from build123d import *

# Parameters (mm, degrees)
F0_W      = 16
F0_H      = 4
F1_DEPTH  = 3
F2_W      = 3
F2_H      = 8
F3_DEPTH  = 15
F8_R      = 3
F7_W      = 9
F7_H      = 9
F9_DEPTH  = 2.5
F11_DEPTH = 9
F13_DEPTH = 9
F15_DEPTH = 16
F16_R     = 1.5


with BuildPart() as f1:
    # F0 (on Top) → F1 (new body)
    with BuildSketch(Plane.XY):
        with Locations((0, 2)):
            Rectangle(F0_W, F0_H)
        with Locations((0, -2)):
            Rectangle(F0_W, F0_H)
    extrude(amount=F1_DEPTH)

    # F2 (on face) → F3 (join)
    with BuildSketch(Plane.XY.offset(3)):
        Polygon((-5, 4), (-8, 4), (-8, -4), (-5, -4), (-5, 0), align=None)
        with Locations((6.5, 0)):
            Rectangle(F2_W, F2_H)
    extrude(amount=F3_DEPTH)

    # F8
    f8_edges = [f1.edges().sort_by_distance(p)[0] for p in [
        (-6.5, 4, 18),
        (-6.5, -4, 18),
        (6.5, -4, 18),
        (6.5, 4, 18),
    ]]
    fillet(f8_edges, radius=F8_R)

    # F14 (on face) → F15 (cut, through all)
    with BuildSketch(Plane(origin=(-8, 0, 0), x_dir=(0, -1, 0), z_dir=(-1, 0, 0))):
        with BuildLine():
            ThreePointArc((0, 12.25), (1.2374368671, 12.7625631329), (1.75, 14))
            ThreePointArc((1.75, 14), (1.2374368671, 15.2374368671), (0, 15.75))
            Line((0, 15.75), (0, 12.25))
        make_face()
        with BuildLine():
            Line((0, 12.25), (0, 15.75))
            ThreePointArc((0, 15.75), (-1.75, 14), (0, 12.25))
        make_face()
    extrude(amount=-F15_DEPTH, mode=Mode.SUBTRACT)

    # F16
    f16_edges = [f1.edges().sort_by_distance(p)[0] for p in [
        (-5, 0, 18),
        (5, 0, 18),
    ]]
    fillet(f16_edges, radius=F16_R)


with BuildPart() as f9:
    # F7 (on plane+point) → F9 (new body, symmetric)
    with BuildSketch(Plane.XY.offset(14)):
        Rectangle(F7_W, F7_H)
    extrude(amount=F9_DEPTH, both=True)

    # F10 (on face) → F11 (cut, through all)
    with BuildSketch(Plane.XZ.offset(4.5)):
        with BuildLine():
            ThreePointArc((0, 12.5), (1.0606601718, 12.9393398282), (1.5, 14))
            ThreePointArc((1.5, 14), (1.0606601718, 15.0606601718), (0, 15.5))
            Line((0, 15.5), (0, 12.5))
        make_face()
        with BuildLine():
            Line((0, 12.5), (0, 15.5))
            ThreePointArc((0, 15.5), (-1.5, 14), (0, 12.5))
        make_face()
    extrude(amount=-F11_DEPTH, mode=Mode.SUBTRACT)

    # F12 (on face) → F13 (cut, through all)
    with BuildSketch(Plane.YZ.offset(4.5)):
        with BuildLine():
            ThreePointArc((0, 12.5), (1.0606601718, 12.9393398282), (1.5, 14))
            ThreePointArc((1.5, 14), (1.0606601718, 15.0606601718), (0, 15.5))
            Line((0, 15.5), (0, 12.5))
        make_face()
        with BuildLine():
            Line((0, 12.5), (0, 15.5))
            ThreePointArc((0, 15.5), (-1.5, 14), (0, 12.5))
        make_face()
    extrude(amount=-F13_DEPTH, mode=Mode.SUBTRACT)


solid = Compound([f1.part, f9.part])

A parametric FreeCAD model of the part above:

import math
import FreeCAD as App
import Part
import Sketcher
Q = App.Units.Quantity


def edges_at(feature, points):
    """Names of the edges that pass closest to the given points."""
    edges = feature.Shape.Edges
    near = lambda p: min(range(len(edges)), key=lambda i: edges[i].distToShape(Part.Vertex(*p))[0])
    return sorted({f"Edge{near(p) + 1}" for p in points})

doc = App.newDocument("Part")
body = doc.addObject("PartDesign::Body", "Body")

# Sketch on XY plane
sketch1 = body.newObject("Sketcher::SketchObject", "Sketch")
sketch1.AttachmentSupport = (doc.getObject("XY_Plane"), [""])
sketch1.MapMode = "FlatFace"
sketch1.addGeometry([
    Part.LineSegment(App.Vector(-8, 4, 0), App.Vector(-8, -4, 0)),
    Part.LineSegment(App.Vector(-8, -4, 0), App.Vector(8, -4, 0)),
    Part.LineSegment(App.Vector(8, -4, 0), App.Vector(8, 4, 0)),
    Part.LineSegment(App.Vector(8, 4, 0), App.Vector(-8, 4, 0)),
], False)
sketch1.addConstraint([
    Sketcher.Constraint("Coincident", 0, 2, 1, 1),
    Sketcher.Constraint("Coincident", 1, 2, 2, 1),
    Sketcher.Constraint("Coincident", 2, 2, 3, 1),
    Sketcher.Constraint("Coincident", 3, 2, 0, 1),
    Sketcher.Constraint("Vertical", 0),
    Sketcher.Constraint("Horizontal", 1),
    Sketcher.Constraint("Vertical", 2),
    Sketcher.Constraint("Horizontal", 3),
    Sketcher.Constraint("Symmetric", 0, 2, 2, 2, -1, 1),
    Sketcher.Constraint("DistanceX", 1, 1, 1, 2, Q("16 mm")),
    Sketcher.Constraint("DistanceY", 0, 2, 0, 1, Q("8 mm")),
])
pad1 = body.newObject("PartDesign::Pad", "Pad")
pad1.Profile = sketch1
pad1.Length = 3

# Sketch on XY plane
sketch2 = body.newObject("Sketcher::SketchObject", "Sketch001")
sketch2.AttachmentSupport = (doc.getObject("XY_Plane"), [""])
sketch2.MapMode = "FlatFace"
sketch2.AttachmentOffset = App.Placement(App.Vector(0, 0, 3), App.Rotation())
sketch2.addGeometry([
    Part.LineSegment(App.Vector(-5, 4, 0), App.Vector(-8, 4, 0)),  # 0
    Part.LineSegment(App.Vector(-8, 4, 0), App.Vector(-8, -4, 0)),  # 1
    Part.LineSegment(App.Vector(-8, -4, 0), App.Vector(-5, -4, 0)),  # 2
    Part.LineSegment(App.Vector(-5, -4, 0), App.Vector(-5, 4, 0)),  # 3
    Part.LineSegment(App.Vector(5, 4, 0), App.Vector(5, -4, 0)),  # 4
    Part.LineSegment(App.Vector(5, -4, 0), App.Vector(8, -4, 0)),  # 5
    Part.LineSegment(App.Vector(8, -4, 0), App.Vector(8, 4, 0)),  # 6
    Part.LineSegment(App.Vector(8, 4, 0), App.Vector(5, 4, 0)),  # 7
], False)
sketch2.addConstraint([
    Sketcher.Constraint("Coincident", 0, 2, 1, 1),
    Sketcher.Constraint("Coincident", 1, 2, 2, 1),
    Sketcher.Constraint("Coincident", 2, 2, 3, 1),
    Sketcher.Constraint("Coincident", 3, 2, 0, 1),
    Sketcher.Constraint("Coincident", 4, 2, 5, 1),
    Sketcher.Constraint("Coincident", 5, 2, 6, 1),
    Sketcher.Constraint("Coincident", 6, 2, 7, 1),
    Sketcher.Constraint("Coincident", 7, 2, 4, 1),
    Sketcher.Constraint("Horizontal", 0),
    Sketcher.Constraint("Vertical", 1),
    Sketcher.Constraint("Horizontal", 2),
    Sketcher.Constraint("Vertical", 3),
    Sketcher.Constraint("Vertical", 4),
    Sketcher.Constraint("Horizontal", 5),
    Sketcher.Constraint("Vertical", 6),
    Sketcher.Constraint("Horizontal", 7),
    Sketcher.Constraint("Symmetric", 3, 2, 4, 2, -1, 1),
    Sketcher.Constraint("Symmetric", 1, 2, 6, 2, -1, 1),
    Sketcher.Constraint("Horizontal", 2, 2, 4, 2),
    Sketcher.Constraint("DistanceX", 0, 2, 0, 1, Q("3 mm")),
    Sketcher.Constraint("DistanceY", 1, 2, 1, 1, Q("8 mm")),
    Sketcher.Constraint("DistanceX", 0, 2, -1, 1, Q("8 mm")),
])
pad2 = body.newObject("PartDesign::Pad", "Pad001")
pad2.Profile = sketch2
pad2.Length = 15
doc.recompute()

fillet = body.newObject("PartDesign::Fillet", "Fillet")
fillet.Base = (pad2, edges_at(pad2, [
    (-6.5, 4, 18),
    (-6.5, -4, 18),
    (6.5, -4, 18),
    (6.5, 4, 18),
]))
fillet.Radius = 3

# Sketch on YZ plane
sketch3 = body.newObject("Sketcher::SketchObject", "Sketch002")
sketch3.AttachmentSupport = (doc.getObject("YZ_Plane"), [""])
sketch3.MapMode = "FlatFace"
sketch3.AttachmentOffset = App.Placement(App.Vector(0, 0, -8), App.Rotation())
sketch3.addGeometry([
    Part.ArcOfCircle(Part.Circle(App.Vector(0, 14, 0), App.Vector(0, 0, 1), 1.75), math.radians(180), math.radians(270)),
    Part.ArcOfCircle(Part.Circle(App.Vector(0, 14, 0), App.Vector(0, 0, 1), 1.75), math.radians(90), math.radians(180)),
    Part.ArcOfCircle(Part.Circle(App.Vector(0, 14, 0), App.Vector(0, 0, 1), 1.75), math.radians(-90), math.radians(90)),
], False)
sketch3.addConstraint([
    Sketcher.Constraint("Tangent", 0, 1, 1, 2),
    Sketcher.Constraint("Tangent", 1, 1, 2, 2),
    Sketcher.Constraint("Tangent", 2, 1, 0, 2),
    Sketcher.Constraint("PointOnObject", 0, 3, -2),
    Sketcher.Constraint("PointOnObject", 1, 1, -2),
    Sketcher.Constraint("PointOnObject", 2, 1, -2),
    Sketcher.Constraint("Horizontal", 2, 3, 0, 1),
    Sketcher.Constraint("Radius", 0, Q("1.75 mm")),
    Sketcher.Constraint("DistanceY", -1, 1, 0, 3, Q("14 mm")),
])
pocket1 = body.newObject("PartDesign::Pocket", "Pocket")
pocket1.Profile = sketch3
pocket1.Type = "ThroughAll"
pocket1.Reversed = True
doc.recompute()

fillet2 = body.newObject("PartDesign::Fillet", "Fillet001")
fillet2.Base = (pocket1, edges_at(pocket1, [(-5, 0, 18), (5, 0, 18)]))
fillet2.Radius = 1.5
body2 = doc.addObject("PartDesign::Body", "Body001")

# Sketch on XY plane
sketch4 = body2.newObject("Sketcher::SketchObject", "Sketch003")
sketch4.AttachmentSupport = (doc.getObject("XY_Plane001"), [""])
sketch4.MapMode = "FlatFace"
sketch4.AttachmentOffset = App.Placement(App.Vector(0, 0, 14), App.Rotation())
sketch4.addGeometry([
    Part.LineSegment(App.Vector(-4.5, 4.5, 0), App.Vector(-4.5, -4.5, 0)),
    Part.LineSegment(App.Vector(-4.5, -4.5, 0), App.Vector(4.5, -4.5, 0)),
    Part.LineSegment(App.Vector(4.5, -4.5, 0), App.Vector(4.5, 4.5, 0)),
    Part.LineSegment(App.Vector(4.5, 4.5, 0), App.Vector(-4.5, 4.5, 0)),
], False)
sketch4.addConstraint([
    Sketcher.Constraint("Coincident", 0, 2, 1, 1),
    Sketcher.Constraint("Coincident", 1, 2, 2, 1),
    Sketcher.Constraint("Coincident", 2, 2, 3, 1),
    Sketcher.Constraint("Coincident", 3, 2, 0, 1),
    Sketcher.Constraint("Vertical", 0),
    Sketcher.Constraint("Horizontal", 1),
    Sketcher.Constraint("Vertical", 2),
    Sketcher.Constraint("Horizontal", 3),
    Sketcher.Constraint("Symmetric", 0, 2, 2, 2, -1, 1),
    Sketcher.Constraint("Equal", 3, 0),
    Sketcher.Constraint("DistanceX", 1, 1, 1, 2, Q("9 mm")),
])
pad3 = body2.newObject("PartDesign::Pad", "Pad002")
pad3.Profile = sketch4
pad3.Length = 5
pad3.Midplane = True

# Sketch on XZ plane
sketch5 = body2.newObject("Sketcher::SketchObject", "Sketch004")
sketch5.AttachmentSupport = (doc.getObject("XZ_Plane001"), [""])
sketch5.MapMode = "FlatFace"
sketch5.AttachmentOffset = App.Placement(App.Vector(0, 0, 4.5), App.Rotation())
sketch5.addGeometry([
    Part.ArcOfCircle(Part.Circle(App.Vector(0, 14, 0), App.Vector(0, 0, 1), 1.5), math.radians(-90), math.radians(0)),
    Part.ArcOfCircle(Part.Circle(App.Vector(0, 14, 0), App.Vector(0, 0, 1), 1.5), math.radians(0), math.radians(90)),
    Part.ArcOfCircle(Part.Circle(App.Vector(0, 14, 0), App.Vector(0, 0, 1), 1.5), math.radians(90), math.radians(270)),
], False)
sketch5.addConstraint([
    Sketcher.Constraint("Tangent", 0, 2, 1, 1),
    Sketcher.Constraint("Tangent", 1, 2, 2, 1),
    Sketcher.Constraint("Tangent", 2, 2, 0, 1),
    Sketcher.Constraint("PointOnObject", 0, 3, -2),
    Sketcher.Constraint("PointOnObject", 1, 2, -2),
    Sketcher.Constraint("PointOnObject", 2, 2, -2),
    Sketcher.Constraint("Horizontal", 2, 3, 0, 2),
    Sketcher.Constraint("Radius", 0, Q("1.5 mm")),
    Sketcher.Constraint("DistanceY", -1, 1, 0, 3, Q("14 mm")),
])
pocket2 = body2.newObject("PartDesign::Pocket", "Pocket001")
pocket2.Profile = sketch5
pocket2.Type = "ThroughAll"

# Sketch on YZ plane
sketch6 = body2.newObject("Sketcher::SketchObject", "Sketch005")
sketch6.AttachmentSupport = (doc.getObject("YZ_Plane001"), [""])
sketch6.MapMode = "FlatFace"
sketch6.AttachmentOffset = App.Placement(App.Vector(0, 0, 4.5), App.Rotation())
sketch6.addGeometry([
    Part.ArcOfCircle(Part.Circle(App.Vector(0, 14, 0), App.Vector(0, 0, 1), 1.5), math.radians(-90), math.radians(0)),
    Part.ArcOfCircle(Part.Circle(App.Vector(0, 14, 0), App.Vector(0, 0, 1), 1.5), math.radians(0), math.radians(90)),
    Part.ArcOfCircle(Part.Circle(App.Vector(0, 14, 0), App.Vector(0, 0, 1), 1.5), math.radians(90), math.radians(270)),
], False)
sketch6.addConstraint([
    Sketcher.Constraint("Tangent", 0, 2, 1, 1),
    Sketcher.Constraint("Tangent", 1, 2, 2, 1),
    Sketcher.Constraint("Tangent", 2, 2, 0, 1),
    Sketcher.Constraint("PointOnObject", 0, 3, -2),
    Sketcher.Constraint("PointOnObject", 1, 2, -2),
    Sketcher.Constraint("PointOnObject", 2, 2, -2),
    Sketcher.Constraint("Horizontal", 2, 3, 0, 2),
    Sketcher.Constraint("Radius", 0, Q("1.5 mm")),
    Sketcher.Constraint("DistanceY", -1, 1, 0, 3, Q("14 mm")),
])
pocket3 = body2.newObject("PartDesign::Pocket", "Pocket002")
pocket3.Profile = sketch6
pocket3.Type = "ThroughAll"

doc.recompute()
